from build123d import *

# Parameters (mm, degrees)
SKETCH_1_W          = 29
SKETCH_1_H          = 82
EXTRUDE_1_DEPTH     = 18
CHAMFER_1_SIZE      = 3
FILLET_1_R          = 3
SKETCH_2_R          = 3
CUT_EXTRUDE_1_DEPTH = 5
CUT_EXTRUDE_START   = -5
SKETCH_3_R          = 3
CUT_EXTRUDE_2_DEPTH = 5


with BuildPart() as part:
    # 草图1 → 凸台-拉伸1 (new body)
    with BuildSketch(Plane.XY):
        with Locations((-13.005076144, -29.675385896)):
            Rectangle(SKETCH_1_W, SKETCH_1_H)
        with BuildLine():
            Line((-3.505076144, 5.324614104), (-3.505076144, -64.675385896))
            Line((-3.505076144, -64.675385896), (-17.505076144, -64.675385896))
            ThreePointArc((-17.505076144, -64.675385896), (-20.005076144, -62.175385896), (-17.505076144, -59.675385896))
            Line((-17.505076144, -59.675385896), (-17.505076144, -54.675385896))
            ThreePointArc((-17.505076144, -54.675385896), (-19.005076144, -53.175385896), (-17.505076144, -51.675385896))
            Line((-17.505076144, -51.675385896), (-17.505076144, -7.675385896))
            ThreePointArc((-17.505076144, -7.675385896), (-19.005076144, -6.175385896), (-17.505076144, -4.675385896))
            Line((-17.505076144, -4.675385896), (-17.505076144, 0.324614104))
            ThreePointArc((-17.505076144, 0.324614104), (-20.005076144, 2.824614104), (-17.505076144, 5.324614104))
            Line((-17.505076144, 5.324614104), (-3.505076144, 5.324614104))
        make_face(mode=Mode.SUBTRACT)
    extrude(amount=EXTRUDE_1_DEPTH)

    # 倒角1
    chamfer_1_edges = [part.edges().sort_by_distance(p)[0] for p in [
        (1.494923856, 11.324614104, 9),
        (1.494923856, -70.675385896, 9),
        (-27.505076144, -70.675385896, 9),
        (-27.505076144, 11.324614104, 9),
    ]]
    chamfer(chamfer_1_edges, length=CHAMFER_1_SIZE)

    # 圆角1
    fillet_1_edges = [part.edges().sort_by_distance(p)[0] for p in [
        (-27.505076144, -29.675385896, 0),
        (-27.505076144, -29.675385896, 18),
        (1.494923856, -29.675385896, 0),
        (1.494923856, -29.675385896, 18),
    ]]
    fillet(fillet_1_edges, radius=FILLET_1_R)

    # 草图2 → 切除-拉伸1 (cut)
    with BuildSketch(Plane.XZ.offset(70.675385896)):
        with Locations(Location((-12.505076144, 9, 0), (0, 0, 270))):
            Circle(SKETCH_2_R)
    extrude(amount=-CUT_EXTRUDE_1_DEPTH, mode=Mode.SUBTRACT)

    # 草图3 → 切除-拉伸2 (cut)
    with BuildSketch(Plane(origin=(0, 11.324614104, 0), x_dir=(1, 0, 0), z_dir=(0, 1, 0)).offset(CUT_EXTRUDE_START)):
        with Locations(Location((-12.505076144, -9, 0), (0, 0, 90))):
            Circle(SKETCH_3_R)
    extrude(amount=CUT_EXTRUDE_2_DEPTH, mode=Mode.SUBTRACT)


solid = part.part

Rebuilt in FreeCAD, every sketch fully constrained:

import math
import FreeCAD as App
import Part
import Sketcher


def edges_at(feature, points):
    """Names of the edges that pass closest to the given points."""
    edges = feature.Shape.Edges
    near = lambda p: min(range(len(edges)), key=lambda i: edges[i].distToShape(Part.Vertex(*p))[0])
    return sorted({f"Edge{near(p) + 1}" for p in points})

doc = App.newDocument("Part")
body = doc.addObject("PartDesign::Body", "Body")

sketch1 = doc.addObject("Sketcher::SketchObject", "Sketch")
body.addObject(sketch1)
sketch1.AttachmentSupport = (doc.XY_Plane, [""])
sketch1.MapMode = "FlatFace"
sketch1.addGeometry([
    Part.LineSegment(App.Vector(-27.505076, 11.324614, 0), App.Vector(-27.505076, -70.675386, 0)),
    Part.LineSegment(App.Vector(-27.505076, -70.675386, 0), App.Vector(1.494924, -70.675386, 0)),
    Part.LineSegment(App.Vector(1.494924, -70.675386, 0), App.Vector(1.494924, 11.324614, 0)),
    Part.LineSegment(App.Vector(1.494924, 11.324614, 0), App.Vector(-27.505076, 11.324614, 0)),
    Part.LineSegment(App.Vector(-17.505076, 5.324614, 0), App.Vector(-3.505076, 5.324614, 0)),
    Part.LineSegment(App.Vector(-3.505076, 5.324614, 0), App.Vector(-3.505076, -64.675386, 0)),
    Part.LineSegment(App.Vector(-3.505076, -64.675386, 0), App.Vector(-17.505076, -64.675386, 0)),
    Part.ArcOfCircle(Part.Circle(App.Vector(-17.505076, -62.175386, 0), App.Vector(0, 0, 1), 2.5), math.radians(90), math.radians(270)),
    Part.LineSegment(App.Vector(-17.505076, -59.675386, 0), App.Vector(-17.505076, -54.675386, 0)),
    Part.ArcOfCircle(Part.Circle(App.Vector(-17.505076, -53.175386, 0), App.Vector(0, 0, 1), 1.5), math.radians(90), math.radians(270)),
    Part.LineSegment(App.Vector(-17.505076, -51.675386, 0), App.Vector(-17.505076, -7.675386, 0)),
    Part.ArcOfCircle(Part.Circle(App.Vector(-17.505076, -6.175386, 0), App.Vector(0, 0, 1), 1.5), math.radians(90), math.radians(270)),
    Part.LineSegment(App.Vector(-17.505076, -4.675386, 0), App.Vector(-17.505076, 0.324614, 0)),
    Part.ArcOfCircle(Part.Circle(App.Vector(-17.505076, 2.824614, 0), App.Vector(0, 0, 1), 2.5), math.radians(90), math.radians(270)),
], False)
sketch1.addConstraint([
    Sketcher.Constraint("Coincident", 0, 2, 1, 1),
    Sketcher.Constraint("Coincident", 1, 2, 2, 1),
    Sketcher.Constraint("Coincident", 2, 2, 3, 1),
    Sketcher.Constraint("Coincident", 3, 2, 0, 1),
    Sketcher.Constraint("Coincident", 4, 2, 5, 1),
    Sketcher.Constraint("Coincident", 5, 2, 6, 1),
    Sketcher.Constraint("Tangent", 6, 2, 7, 2),
    Sketcher.Constraint("Coincident", 7, 1, 8, 1),
    Sketcher.Constraint("Coincident", 8, 2, 9, 2),
    Sketcher.Constraint("Coincident", 9, 1, 10, 1),
    Sketcher.Constraint("Coincident", 10, 2, 11, 2),
    Sketcher.Constraint("Coincident", 11, 1, 12, 1),
    Sketcher.Constraint("Coincident", 12, 2, 13, 2),
    Sketcher.Constraint("Tangent", 13, 1, 4, 1),
    Sketcher.Constraint("Vertical", 0),
    Sketcher.Constraint("Horizontal", 1),
    Sketcher.Constraint("Vertical", 2),
    Sketcher.Constraint("Horizontal", 3),
    Sketcher.Constraint("Horizontal", 4),
    Sketcher.Constraint("Vertical", 5),
    Sketcher.Constraint("Horizontal", 6),
    Sketcher.Constraint("Vertical", 8),
    Sketcher.Constraint("Vertical", 10),
    Sketcher.Constraint("Vertical", 12),
    Sketcher.Constraint("Equal", 9, 11),
    Sketcher.Constraint("Equal", 7, 13),
    Sketcher.Constraint("Vertical", 7, 3, 9, 3),
    Sketcher.Constraint("Vertical", 9, 3, 11, 3),
    Sketcher.Constraint("Vertical", 11, 3, 13, 3),
    Sketcher.Constraint("Vertical", 6, 2, 7, 1),
    Sketcher.Constraint("Vertical", 8, 2, 9, 1),
    Sketcher.Constraint("Vertical", 10, 2, 11, 1),
    Sketcher.Constraint("Equal", 8, 12),
    Sketcher.Constraint("Radius", 7, 2.5),
    Sketcher.Constraint("Radius", 9, 1.5),
    Sketcher.Constraint("DistanceX", 1, 1, 1, 2, 29.0),
    Sketcher.Constraint("DistanceX", 4, 1, 4, 2, 14.0),
    Sketcher.Constraint("DistanceY", 0, 2, 0, 1, 82.0),
    Sketcher.Constraint("DistanceY", 5, 2, 5, 1, 70.0),
    Sketcher.Constraint("DistanceY", 8, 1, 8, 2, 5.0),
    Sketcher.Constraint("DistanceX", 0, 2, 7, 3, 10.0),
    Sketcher.Constraint("DistanceY", 4, 2, 2, 2, 6.0),
    Sketcher.Constraint("DistanceX", 7, 3, -1, 1, 17.505076),
    Sketcher.Constraint("DistanceY", 7, 3, -1, 1, 62.175386),
])
pad1 = doc.addObject("PartDesign::Pad", "Pad")
body.addObject(pad1)
pad1.Profile = sketch1
pad1.Length = 18
doc.recompute()

chamfer = doc.addObject("PartDesign::Chamfer", "Chamfer")
body.addObject(chamfer)
chamfer.Base = (pad1, edges_at(pad1, [
    (1.495, 11.325, 9),
    (1.495, -70.675, 9),
    (-27.505, -70.675, 9),
    (-27.505, 11.325, 9),
]))
chamfer.Size = 3
doc.recompute()

fillet = doc.addObject("PartDesign::Fillet", "Fillet")
body.addObject(fillet)
fillet.Base = (chamfer, edges_at(chamfer, [
    (-27.505, -29.675, 0),
    (-27.505, -29.675, 18),
    (1.495, -29.675, 0),
    (1.495, -29.675, 18),
]))
fillet.Radius = 3

sketch2 = doc.addObject("Sketcher::SketchObject", "Sketch001")
body.addObject(sketch2)
sketch2.AttachmentSupport = (doc.XZ_Plane, [""])
sketch2.MapMode = "FlatFace"
sketch2.AttachmentOffset = App.Placement(App.Vector(0, 0, 70.675386), App.Rotation())
sketch2.addGeometry(Part.Circle(App.Vector(-12.505076, 9, 0), App.Vector(0, 0, 1), 3), False)
sketch2.addConstraint([
    Sketcher.Constraint("Diameter", 0, 6.0),
    Sketcher.Constraint("DistanceY", -1, 1, 0, 3, 9.0),
    Sketcher.Constraint("DistanceX", 0, 3, -1, 1, 12.505076),
])
pocket1 = doc.addObject("PartDesign::Pocket", "Pocket")
body.addObject(pocket1)
pocket1.Profile = sketch2
pocket1.Length = 5

sketch3 = doc.addObject("Sketcher::SketchObject", "Sketch002")
body.addObject(sketch3)
sketch3.AttachmentSupport = (doc.XZ_Plane, [""])
sketch3.MapMode = "FlatFace"
sketch3.AttachmentOffset = App.Placement(App.Vector(0, 0, -6.324614), App.Rotation())
sketch3.addGeometry(Part.Circle(App.Vector(-12.505076, 9, 0), App.Vector(0, 0, 1), 3), False)
sketch3.addConstraint([
    Sketcher.Constraint("Diameter", 0, 6.0),
    Sketcher.Constraint("DistanceY", -1, 1, 0, 3, 9.0),
    Sketcher.Constraint("DistanceX", 0, 3, -1, 1, 12.505076),
])
pocket2 = doc.addObject("PartDesign::Pocket", "Pocket001")
body.addObject(pocket2)
pocket2.Profile = sketch3
pocket2.Length = 5

doc.recompute()
